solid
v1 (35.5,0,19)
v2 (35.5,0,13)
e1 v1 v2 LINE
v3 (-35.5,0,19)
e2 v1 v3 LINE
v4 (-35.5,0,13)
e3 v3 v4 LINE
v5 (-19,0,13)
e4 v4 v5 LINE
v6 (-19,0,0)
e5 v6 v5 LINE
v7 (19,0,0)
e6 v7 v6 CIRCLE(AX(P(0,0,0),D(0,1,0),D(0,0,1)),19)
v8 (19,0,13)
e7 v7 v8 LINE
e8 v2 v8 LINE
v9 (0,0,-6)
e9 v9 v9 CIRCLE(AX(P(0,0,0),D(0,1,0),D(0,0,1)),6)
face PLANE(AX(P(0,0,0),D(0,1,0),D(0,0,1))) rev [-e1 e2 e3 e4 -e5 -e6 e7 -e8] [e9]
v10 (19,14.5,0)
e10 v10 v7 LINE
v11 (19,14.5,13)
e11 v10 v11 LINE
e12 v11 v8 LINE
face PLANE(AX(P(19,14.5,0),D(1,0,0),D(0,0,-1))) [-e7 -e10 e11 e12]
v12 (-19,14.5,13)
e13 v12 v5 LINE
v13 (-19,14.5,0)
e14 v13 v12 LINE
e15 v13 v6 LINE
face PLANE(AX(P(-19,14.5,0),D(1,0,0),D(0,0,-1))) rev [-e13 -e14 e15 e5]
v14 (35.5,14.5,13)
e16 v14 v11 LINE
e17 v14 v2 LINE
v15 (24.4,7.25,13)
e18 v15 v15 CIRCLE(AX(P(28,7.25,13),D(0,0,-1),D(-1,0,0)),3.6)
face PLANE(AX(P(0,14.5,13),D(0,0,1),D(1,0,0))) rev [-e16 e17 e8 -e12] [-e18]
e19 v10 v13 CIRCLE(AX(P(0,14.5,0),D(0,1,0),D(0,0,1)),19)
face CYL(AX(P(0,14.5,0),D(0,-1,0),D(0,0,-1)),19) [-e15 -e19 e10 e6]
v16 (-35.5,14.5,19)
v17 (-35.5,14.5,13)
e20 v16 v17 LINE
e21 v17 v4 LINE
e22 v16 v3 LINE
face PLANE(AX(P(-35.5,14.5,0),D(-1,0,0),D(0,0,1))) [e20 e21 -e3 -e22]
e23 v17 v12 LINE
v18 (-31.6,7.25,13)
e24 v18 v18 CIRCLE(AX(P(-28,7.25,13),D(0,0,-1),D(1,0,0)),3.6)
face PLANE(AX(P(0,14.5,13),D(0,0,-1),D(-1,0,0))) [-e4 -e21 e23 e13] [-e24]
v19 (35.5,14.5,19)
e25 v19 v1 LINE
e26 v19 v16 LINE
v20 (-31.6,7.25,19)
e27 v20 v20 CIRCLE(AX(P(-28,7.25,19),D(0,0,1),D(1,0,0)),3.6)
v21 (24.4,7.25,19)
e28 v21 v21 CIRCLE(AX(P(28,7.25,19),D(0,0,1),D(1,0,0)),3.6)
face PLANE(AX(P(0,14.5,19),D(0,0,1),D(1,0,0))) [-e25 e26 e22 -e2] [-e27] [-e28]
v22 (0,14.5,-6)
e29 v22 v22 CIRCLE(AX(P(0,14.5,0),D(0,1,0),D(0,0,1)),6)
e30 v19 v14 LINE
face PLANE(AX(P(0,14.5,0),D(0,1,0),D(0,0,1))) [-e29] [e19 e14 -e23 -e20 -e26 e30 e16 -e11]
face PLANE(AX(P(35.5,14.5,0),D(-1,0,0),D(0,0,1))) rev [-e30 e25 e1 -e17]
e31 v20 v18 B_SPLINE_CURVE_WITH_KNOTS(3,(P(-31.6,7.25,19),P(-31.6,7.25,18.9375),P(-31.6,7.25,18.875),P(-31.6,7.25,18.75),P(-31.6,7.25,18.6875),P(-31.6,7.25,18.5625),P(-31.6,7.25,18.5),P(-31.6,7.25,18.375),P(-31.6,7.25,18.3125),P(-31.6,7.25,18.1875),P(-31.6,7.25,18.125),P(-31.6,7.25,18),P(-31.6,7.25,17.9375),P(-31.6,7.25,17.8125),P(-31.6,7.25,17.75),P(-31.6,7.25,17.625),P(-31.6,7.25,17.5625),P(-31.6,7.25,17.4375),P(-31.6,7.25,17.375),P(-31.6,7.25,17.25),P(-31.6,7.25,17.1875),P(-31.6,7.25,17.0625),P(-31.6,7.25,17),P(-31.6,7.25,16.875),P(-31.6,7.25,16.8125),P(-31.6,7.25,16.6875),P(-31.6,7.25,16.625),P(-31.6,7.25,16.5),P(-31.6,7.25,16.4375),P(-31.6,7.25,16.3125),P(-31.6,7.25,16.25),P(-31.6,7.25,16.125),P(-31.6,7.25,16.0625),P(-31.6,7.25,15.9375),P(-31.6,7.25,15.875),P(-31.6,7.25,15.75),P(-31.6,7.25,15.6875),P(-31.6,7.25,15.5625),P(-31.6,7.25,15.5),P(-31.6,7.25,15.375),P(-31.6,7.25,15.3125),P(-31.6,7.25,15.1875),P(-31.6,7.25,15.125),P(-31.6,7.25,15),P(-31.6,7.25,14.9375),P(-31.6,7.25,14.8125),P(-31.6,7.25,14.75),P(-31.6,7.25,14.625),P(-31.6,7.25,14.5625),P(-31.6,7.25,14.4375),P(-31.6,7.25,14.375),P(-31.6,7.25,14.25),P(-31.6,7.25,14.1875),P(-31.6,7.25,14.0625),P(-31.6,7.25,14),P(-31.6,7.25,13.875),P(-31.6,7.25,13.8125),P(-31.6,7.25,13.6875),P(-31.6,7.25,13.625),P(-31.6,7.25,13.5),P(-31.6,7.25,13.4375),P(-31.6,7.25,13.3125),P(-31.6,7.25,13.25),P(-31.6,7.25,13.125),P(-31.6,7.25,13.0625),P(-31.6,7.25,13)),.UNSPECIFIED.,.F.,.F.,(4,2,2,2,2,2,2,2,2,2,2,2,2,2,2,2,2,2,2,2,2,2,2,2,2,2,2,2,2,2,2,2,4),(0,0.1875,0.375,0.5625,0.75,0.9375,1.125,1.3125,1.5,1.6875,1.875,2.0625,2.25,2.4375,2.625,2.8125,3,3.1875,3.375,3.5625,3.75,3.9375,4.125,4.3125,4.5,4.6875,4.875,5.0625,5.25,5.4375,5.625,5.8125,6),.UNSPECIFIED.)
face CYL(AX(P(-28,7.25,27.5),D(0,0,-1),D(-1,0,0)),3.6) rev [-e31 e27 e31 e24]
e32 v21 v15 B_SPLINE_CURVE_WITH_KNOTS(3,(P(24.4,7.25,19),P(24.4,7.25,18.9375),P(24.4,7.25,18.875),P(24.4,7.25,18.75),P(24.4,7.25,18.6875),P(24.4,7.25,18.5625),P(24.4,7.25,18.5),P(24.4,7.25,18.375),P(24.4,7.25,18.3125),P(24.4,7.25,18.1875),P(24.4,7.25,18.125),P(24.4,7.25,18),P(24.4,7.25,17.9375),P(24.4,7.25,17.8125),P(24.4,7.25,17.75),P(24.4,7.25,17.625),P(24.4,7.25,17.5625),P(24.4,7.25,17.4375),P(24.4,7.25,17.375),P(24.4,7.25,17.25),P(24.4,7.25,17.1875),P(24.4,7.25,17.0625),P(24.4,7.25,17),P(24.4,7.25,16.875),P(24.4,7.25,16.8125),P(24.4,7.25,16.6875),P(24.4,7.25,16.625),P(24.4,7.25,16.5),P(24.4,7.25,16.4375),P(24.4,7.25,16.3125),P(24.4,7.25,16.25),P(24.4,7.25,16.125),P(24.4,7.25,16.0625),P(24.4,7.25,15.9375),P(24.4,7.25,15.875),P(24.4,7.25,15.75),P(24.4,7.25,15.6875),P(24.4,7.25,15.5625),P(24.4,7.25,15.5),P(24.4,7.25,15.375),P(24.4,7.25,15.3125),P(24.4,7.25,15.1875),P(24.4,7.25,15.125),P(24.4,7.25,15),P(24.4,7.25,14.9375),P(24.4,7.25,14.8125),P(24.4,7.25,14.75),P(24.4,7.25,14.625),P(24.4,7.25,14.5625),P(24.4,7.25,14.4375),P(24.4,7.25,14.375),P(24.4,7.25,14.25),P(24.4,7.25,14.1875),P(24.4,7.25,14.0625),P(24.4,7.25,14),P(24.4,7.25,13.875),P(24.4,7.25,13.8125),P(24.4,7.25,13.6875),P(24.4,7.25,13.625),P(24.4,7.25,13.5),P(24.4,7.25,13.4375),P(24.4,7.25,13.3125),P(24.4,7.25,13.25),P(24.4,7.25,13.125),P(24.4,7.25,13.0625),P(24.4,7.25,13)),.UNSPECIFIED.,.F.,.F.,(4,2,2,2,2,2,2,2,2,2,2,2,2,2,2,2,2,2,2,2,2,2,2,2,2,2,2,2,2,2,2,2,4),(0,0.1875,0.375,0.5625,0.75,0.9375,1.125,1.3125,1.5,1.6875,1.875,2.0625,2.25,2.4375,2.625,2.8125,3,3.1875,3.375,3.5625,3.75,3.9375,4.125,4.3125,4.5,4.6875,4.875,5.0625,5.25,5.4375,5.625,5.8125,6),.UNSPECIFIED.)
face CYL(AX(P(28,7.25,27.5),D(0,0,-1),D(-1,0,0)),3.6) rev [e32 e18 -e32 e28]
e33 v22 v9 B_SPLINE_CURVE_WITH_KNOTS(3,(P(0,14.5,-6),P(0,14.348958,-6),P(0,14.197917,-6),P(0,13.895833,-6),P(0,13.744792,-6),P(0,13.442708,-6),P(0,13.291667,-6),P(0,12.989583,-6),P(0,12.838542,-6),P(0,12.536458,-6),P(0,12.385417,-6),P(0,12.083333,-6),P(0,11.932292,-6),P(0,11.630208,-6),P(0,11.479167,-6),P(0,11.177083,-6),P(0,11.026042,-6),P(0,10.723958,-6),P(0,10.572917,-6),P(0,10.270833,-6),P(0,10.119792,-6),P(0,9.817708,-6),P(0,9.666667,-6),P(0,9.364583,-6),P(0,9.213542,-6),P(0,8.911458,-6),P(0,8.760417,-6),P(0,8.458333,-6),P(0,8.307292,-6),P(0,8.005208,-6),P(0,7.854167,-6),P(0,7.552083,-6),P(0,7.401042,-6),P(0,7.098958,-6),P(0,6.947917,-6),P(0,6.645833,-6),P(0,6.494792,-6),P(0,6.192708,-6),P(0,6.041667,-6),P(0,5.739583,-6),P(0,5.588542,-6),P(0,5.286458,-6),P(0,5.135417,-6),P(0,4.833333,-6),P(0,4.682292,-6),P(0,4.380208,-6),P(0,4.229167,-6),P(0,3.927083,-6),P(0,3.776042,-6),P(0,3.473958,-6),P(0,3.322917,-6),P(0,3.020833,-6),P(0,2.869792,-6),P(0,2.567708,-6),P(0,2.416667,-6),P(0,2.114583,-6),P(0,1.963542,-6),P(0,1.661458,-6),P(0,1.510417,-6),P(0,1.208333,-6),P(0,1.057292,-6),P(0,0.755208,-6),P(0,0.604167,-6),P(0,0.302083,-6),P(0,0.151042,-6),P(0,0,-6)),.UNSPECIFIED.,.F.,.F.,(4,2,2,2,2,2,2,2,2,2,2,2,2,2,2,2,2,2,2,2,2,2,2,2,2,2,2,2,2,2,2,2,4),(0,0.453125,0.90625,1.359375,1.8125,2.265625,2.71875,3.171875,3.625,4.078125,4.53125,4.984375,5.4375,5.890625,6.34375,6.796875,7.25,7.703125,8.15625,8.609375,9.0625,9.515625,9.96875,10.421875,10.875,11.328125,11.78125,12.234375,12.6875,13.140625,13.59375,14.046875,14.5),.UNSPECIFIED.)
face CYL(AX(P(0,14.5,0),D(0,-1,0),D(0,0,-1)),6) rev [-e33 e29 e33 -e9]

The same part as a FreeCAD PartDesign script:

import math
import FreeCAD as App
import Part
import Sketcher
from FreeCAD import Vector
Q = App.Units.Quantity

doc = App.newDocument("Part")
body = doc.addObject("PartDesign::Body", "Body")

sketch1 = body.newObject("Sketcher::SketchObject", "Sketch")
sketch1.AttachmentSupport = (doc.getObject("XZ_Plane"), [""])
sketch1.MapMode = "FlatFace"
sketch1.addGeometry(Part.ArcOfCircle(Part.Circle(Vector(0, 0, 0), Vector(0, 0, 1), 19), math.radians(180), math.radians(270)), False)
sketch1.addGeometry(Part.LineSegment(Vector(-19, 0, 0), Vector(-19, 13, 0)), False)
sketch1.addGeometry(Part.LineSegment(Vector(-19, 13, 0), Vector(-36, 13, 0)), False)
sketch1.addGeometry(Part.LineSegment(Vector(-36, 13, 0), Vector(-36, 19, 0)), False)
sketch1.addGeometry(Part.LineSegment(Vector(-36, 19, 0), Vector(36, 19, 0)), False)
sketch1.addGeometry(Part.LineSegment(Vector(36, 19, 0), Vector(36, 13, 0)), False)
sketch1.addGeometry(Part.LineSegment(Vector(36, 13, 0), Vector(19, 13, 0)), False)
sketch1.addGeometry(Part.LineSegment(Vector(19, 13, 0), Vector(19, 0, 0)), False)
sketch1.addGeometry(Part.ArcOfCircle(Part.Circle(Vector(0, 0, 0), Vector(0, 0, 1), 19), math.radians(-90), math.radians(0)), False)
sketch1.addGeometry(Part.ArcOfCircle(Part.Circle(Vector(0, 0, 0), Vector(0, 0, 1), 6), math.radians(90), math.radians(270)), False)
sketch1.addGeometry(Part.ArcOfCircle(Part.Circle(Vector(0, 0, 0), Vector(0, 0, 1), 6), math.radians(-90), math.radians(0)), False)
sketch1.addGeometry(Part.ArcOfCircle(Part.Circle(Vector(0, 0, 0), Vector(0, 0, 1), 6), math.radians(0), math.radians(90)), False)
sketch1.addConstraint(Sketcher.Constraint("Tangent", 0, 1, 1, 1))
sketch1.addConstraint(Sketcher.Constraint("Coincident", 1, 2, 2, 1))
sketch1.addConstraint(Sketcher.Constraint("Coincident", 2, 2, 3, 1))
sketch1.addConstraint(Sketcher.Constraint("Coincident", 3, 2, 4, 1))
sketch1.addConstraint(Sketcher.Constraint("Coincident", 4, 2, 5, 1))
sketch1.addConstraint(Sketcher.Constraint("Coincident", 5, 2, 6, 1))
sketch1.addConstraint(Sketcher.Constraint("Coincident", 6, 2, 7, 1))
sketch1.addConstraint(Sketcher.Constraint("Tangent", 7, 2, 8, 2))
sketch1.addConstraint(Sketcher.Constraint("Tangent", 8, 1, 0, 2))
sketch1.addConstraint(Sketcher.Constraint("Tangent", 9, 2, 10, 1))
sketch1.addConstraint(Sketcher.Constraint("Tangent", 10, 2, 11, 1))
sketch1.addConstraint(Sketcher.Constraint("Tangent", 11, 2, 9, 1))
sketch1.addConstraint(Sketcher.Constraint("Vertical", 1))
sketch1.addConstraint(Sketcher.Constraint("Horizontal", 2))
sketch1.addConstraint(Sketcher.Constraint("Vertical", 3))
sketch1.addConstraint(Sketcher.Constraint("Horizontal", 4))
sketch1.addConstraint(Sketcher.Constraint("Vertical", 5))
sketch1.addConstraint(Sketcher.Constraint("Horizontal", 6))
sketch1.addConstraint(Sketcher.Constraint("Vertical", 7))
sketch1.addConstraint(Sketcher.Constraint("Coincident", 0, 3, -1, 1))
sketch1.addConstraint(Sketcher.Constraint("Coincident", 9, 3, -1, 1))
sketch1.addConstraint(Sketcher.Constraint("Equal", 0, 8))
sketch1.addConstraint(Sketcher.Constraint("Symmetric", 2, 2, 5, 2, -2))
sketch1.addConstraint(Sketcher.Constraint("PointOnObject", 8, 1, -2))
sketch1.addConstraint(Sketcher.Constraint("PointOnObject", 9, 2, -2))
sketch1.addConstraint(Sketcher.Constraint("PointOnObject", 10, 2, -1))
sketch1.addConstraint(Sketcher.Constraint("PointOnObject", 11, 2, -2))
sketch1.addConstraint(Sketcher.Constraint("Radius", 0, Q("19 mm")))
sketch1.addConstraint(Sketcher.Constraint("Radius", 9, Q("6 mm")))
sketch1.addConstraint(Sketcher.Constraint("DistanceX", 4, 1, 4, 2, Q("71 mm")))
sketch1.addConstraint(Sketcher.Constraint("DistanceY", 1, 1, 1, 2, Q("13 mm")))
sketch1.addConstraint(Sketcher.Constraint("DistanceY", 3, 1, 3, 2, Q("6 mm")))
pad1 = body.newObject("PartDesign::Pad", "Pad")
pad1.Profile = sketch1
pad1.Length = 14.5
pad1.Reversed = True

sketch2 = body.newObject("Sketcher::SketchObject", "Sketch001")
sketch2.AttachmentSupport = (doc.getObject("XY_Plane"), [""])
sketch2.MapMode = "FlatFace"
sketch2.AttachmentOffset = App.Placement(Vector(0, 0, 13), App.Rotation())
sketch2.addGeometry(Part.Circle(Vector(28, 7.2, 0), Vector(0, 0, 1), 3.6), False)
sketch2.addGeometry(Part.Circle(Vector(-28, 7.2, 0), Vector(0, 0, 1), 3.6), False)
sketch2.addConstraint(Sketcher.Constraint("Equal", 0, 1))
sketch2.addConstraint(Sketcher.Constraint("Symmetric", 0, 3, 1, 3, -2))
sketch2.addConstraint(Sketcher.Constraint("Diameter", 0, Q("7.2 mm")))
sketch2.addConstraint(Sketcher.Constraint("DistanceX", -1, 1, 0, 3, Q("28 mm")))
sketch2.addConstraint(Sketcher.Constraint("DistanceY", -1, 1, 0, 3, Q("7.25 mm")))
pocket1 = body.newObject("PartDesign::Pocket", "Pocket")
pocket1.Profile = sketch2
pocket1.Length = 14.5
pocket1.Reversed = True

doc.recompute()
